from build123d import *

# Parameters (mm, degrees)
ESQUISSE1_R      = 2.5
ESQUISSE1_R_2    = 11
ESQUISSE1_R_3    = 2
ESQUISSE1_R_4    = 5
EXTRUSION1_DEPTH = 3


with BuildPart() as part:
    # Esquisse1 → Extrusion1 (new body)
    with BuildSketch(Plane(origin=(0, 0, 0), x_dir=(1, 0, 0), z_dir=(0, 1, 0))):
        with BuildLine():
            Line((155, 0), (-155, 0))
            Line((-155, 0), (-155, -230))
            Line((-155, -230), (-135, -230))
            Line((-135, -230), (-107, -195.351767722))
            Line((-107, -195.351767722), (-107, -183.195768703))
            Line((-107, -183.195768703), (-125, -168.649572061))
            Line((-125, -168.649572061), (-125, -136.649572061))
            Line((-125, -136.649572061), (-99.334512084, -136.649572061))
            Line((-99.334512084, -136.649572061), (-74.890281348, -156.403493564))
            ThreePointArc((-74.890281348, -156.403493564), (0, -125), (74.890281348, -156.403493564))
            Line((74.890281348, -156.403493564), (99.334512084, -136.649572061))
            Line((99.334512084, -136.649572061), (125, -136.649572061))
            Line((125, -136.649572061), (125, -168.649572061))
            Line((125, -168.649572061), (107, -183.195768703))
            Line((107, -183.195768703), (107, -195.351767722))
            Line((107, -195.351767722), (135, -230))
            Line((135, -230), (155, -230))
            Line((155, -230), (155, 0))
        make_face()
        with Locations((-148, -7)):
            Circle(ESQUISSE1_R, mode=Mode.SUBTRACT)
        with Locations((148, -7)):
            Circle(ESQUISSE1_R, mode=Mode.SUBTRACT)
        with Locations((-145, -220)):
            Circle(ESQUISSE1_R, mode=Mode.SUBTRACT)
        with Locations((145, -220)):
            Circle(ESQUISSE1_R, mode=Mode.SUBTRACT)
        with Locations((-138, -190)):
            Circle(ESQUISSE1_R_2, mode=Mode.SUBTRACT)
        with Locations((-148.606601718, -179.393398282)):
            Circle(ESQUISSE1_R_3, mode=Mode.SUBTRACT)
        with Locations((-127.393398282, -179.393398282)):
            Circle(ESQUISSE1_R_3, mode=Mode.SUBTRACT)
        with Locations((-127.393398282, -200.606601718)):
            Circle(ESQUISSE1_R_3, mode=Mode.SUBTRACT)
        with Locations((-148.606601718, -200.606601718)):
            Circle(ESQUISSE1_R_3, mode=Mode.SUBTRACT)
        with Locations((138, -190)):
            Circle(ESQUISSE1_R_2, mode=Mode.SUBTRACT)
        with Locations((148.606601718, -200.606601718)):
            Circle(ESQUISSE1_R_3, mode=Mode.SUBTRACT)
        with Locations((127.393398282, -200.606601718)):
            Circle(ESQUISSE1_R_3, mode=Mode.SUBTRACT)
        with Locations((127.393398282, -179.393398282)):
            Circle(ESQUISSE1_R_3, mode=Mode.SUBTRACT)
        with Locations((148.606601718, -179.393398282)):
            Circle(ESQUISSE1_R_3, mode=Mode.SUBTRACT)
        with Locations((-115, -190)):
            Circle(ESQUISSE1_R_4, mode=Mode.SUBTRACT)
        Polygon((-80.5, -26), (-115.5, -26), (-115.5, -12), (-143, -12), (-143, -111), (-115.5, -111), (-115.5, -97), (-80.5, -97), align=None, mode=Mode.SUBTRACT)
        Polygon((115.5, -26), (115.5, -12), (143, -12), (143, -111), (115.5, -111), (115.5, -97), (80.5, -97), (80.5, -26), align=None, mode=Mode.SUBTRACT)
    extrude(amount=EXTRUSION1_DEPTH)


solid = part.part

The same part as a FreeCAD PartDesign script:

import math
import FreeCAD as App
import Part
import Sketcher

doc = App.newDocument("Part")
body = doc.addObject("PartDesign::Body", "Body")

sketch1 = body.newObject("Sketcher::SketchObject", "Sketch")
sketch1.AttachmentSupport = (doc.getObject("XZ_Plane"), [""])
sketch1.MapMode = "FlatFace"
sketch1.addGeometry([
    Part.LineSegment(App.Vector(155, 0, 0), App.Vector(-155, 0, 0)),
    Part.LineSegment(App.Vector(-155, 0, 0), App.Vector(-155, 230, 0)),
    Part.LineSegment(App.Vector(-155, 230, 0), App.Vector(-135, 230, 0)),
    Part.LineSegment(App.Vector(-135, 230, 0), App.Vector(-107, 195.351768, 0)),
    Part.LineSegment(App.Vector(-107, 195.351768, 0), App.Vector(-107, 183.195769, 0)),
    Part.LineSegment(App.Vector(-107, 183.195769, 0), App.Vector(-125, 168.649572, 0)),
    Part.LineSegment(App.Vector(-125, 168.649572, 0), App.Vector(-125, 136.649572, 0)),
    Part.LineSegment(App.Vector(-125, 136.649572, 0), App.Vector(-99.334512, 136.649572, 0)),
    Part.LineSegment(App.Vector(-99.334512, 136.649572, 0), App.Vector(-74.890281, 156.403494, 0)),
    Part.ArcOfCircle(Part.Circle(App.Vector(0, 230, 0), App.Vector(0, 0, 1), 105), math.radians(-135.499209), math.radians(-44.500791)),
    Part.LineSegment(App.Vector(74.890281, 156.403494, 0), App.Vector(99.334512, 136.649572, 0)),
    Part.LineSegment(App.Vector(99.334512, 136.649572, 0), App.Vector(125, 136.649572, 0)),
    Part.LineSegment(App.Vector(125, 136.649572, 0), App.Vector(125, 168.649572, 0)),
    Part.LineSegment(App.Vector(125, 168.649572, 0), App.Vector(107, 183.195769, 0)),
    Part.LineSegment(App.Vector(107, 183.195769, 0), App.Vector(107, 195.351768, 0)),
    Part.LineSegment(App.Vector(107, 195.351768, 0), App.Vector(135, 230, 0)),
    Part.LineSegment(App.Vector(135, 230, 0), App.Vector(155, 230, 0)),
    Part.LineSegment(App.Vector(155, 230, 0), App.Vector(155, 0, 0)),
    Part.Circle(App.Vector(-145, 220, 0), App.Vector(0, 0, 1), 2.5),
    Part.Circle(App.Vector(-148.606602, 200.606602, 0), App.Vector(0, 0, 1), 2),
    Part.Circle(App.Vector(-127.393398, 200.606602, 0), App.Vector(0, 0, 1), 2),
    Part.Circle(App.Vector(-138, 190, 0), App.Vector(0, 0, 1), 11),
    Part.Circle(App.Vector(-115, 190, 0), App.Vector(0, 0, 1), 5),
    Part.Circle(App.Vector(-148.606602, 179.393398, 0), App.Vector(0, 0, 1), 2),
    Part.Circle(App.Vector(-127.393398, 179.393398, 0), App.Vector(0, 0, 1), 2),
    Part.Circle(App.Vector(145, 220, 0), App.Vector(0, 0, 1), 2.5),
    Part.Circle(App.Vector(127.393398, 200.606602, 0), App.Vector(0, 0, 1), 2),
    Part.Circle(App.Vector(148.606602, 200.606602, 0), App.Vector(0, 0, 1), 2),
    Part.Circle(App.Vector(138, 190, 0), App.Vector(0, 0, 1), 11),
    Part.Circle(App.Vector(127.393398, 179.393398, 0), App.Vector(0, 0, 1), 2),
    Part.Circle(App.Vector(148.606602, 179.393398, 0), App.Vector(0, 0, 1), 2),
    Part.LineSegment(App.Vector(-115.5, 26, 0), App.Vector(-80.5, 26, 0)),
    Part.LineSegment(App.Vector(-80.5, 26, 0), App.Vector(-80.5, 97, 0)),
    Part.LineSegment(App.Vector(-80.5, 97, 0), App.Vector(-115.5, 97, 0)),
    Part.LineSegment(App.Vector(-115.5, 97, 0), App.Vector(-115.5, 111, 0)),
    Part.LineSegment(App.Vector(-115.5, 111, 0), App.Vector(-143, 111, 0)),
    Part.LineSegment(App.Vector(-143, 111, 0), App.Vector(-143, 12, 0)),
    Part.LineSegment(App.Vector(-143, 12, 0), App.Vector(-115.5, 12, 0)),
    Part.LineSegment(App.Vector(-115.5, 12, 0), App.Vector(-115.5, 26, 0)),
    Part.Circle(App.Vector(-148, 7, 0), App.Vector(0, 0, 1), 2.5),
    Part.LineSegment(App.Vector(80.5, 26, 0), App.Vector(115.5, 26, 0)),
    Part.LineSegment(App.Vector(115.5, 26, 0), App.Vector(115.5, 12, 0)),
    Part.LineSegment(App.Vector(115.5, 12, 0), App.Vector(143, 12, 0)),
    Part.LineSegment(App.Vector(143, 12, 0), App.Vector(143, 111, 0)),
    Part.LineSegment(App.Vector(143, 111, 0), App.Vector(115.5, 111, 0)),
    Part.LineSegment(App.Vector(115.5, 111, 0), App.Vector(115.5, 97, 0)),
    Part.LineSegment(App.Vector(115.5, 97, 0), App.Vector(80.5, 97, 0)),
    Part.LineSegment(App.Vector(80.5, 97, 0), App.Vector(80.5, 26, 0)),
    Part.Circle(App.Vector(148, 7, 0), App.Vector(0, 0, 1), 2.5),
], False)
sketch1.addConstraint([
    Sketcher.Constraint("Coincident", 0, 2, 1, 1),
    Sketcher.Constraint("Coincident", 1, 2, 2, 1),
    Sketcher.Constraint("Coincident", 2, 2, 3, 1),
    Sketcher.Constraint("Coincident", 3, 2, 4, 1),
    Sketcher.Constraint("Coincident", 4, 2, 5, 1),
    Sketcher.Constraint("Coincident", 5, 2, 6, 1),
    Sketcher.Constraint("Coincident", 6, 2, 7, 1),
    Sketcher.Constraint("Coincident", 7, 2, 8, 1),
    Sketcher.Constraint("Coincident", 8, 2, 9, 1),
    Sketcher.Constraint("Coincident", 9, 2, 10, 1),
    Sketcher.Constraint("Coincident", 10, 2, 11, 1),
    Sketcher.Constraint("Coincident", 11, 2, 12, 1),
    Sketcher.Constraint("Coincident", 12, 2, 13, 1),
    Sketcher.Constraint("Coincident", 13, 2, 14, 1),
    Sketcher.Constraint("Coincident", 14, 2, 15, 1),
    Sketcher.Constraint("Coincident", 15, 2, 16, 1),
    Sketcher.Constraint("Coincident", 16, 2, 17, 1),
    Sketcher.Constraint("Coincident", 17, 2, 0, 1),
    Sketcher.Constraint("Coincident", 31, 2, 32, 1),
    Sketcher.Constraint("Coincident", 32, 2, 33, 1),
    Sketcher.Constraint("Coincident", 33, 2, 34, 1),
    Sketcher.Constraint("Coincident", 34, 2, 35, 1),
    Sketcher.Constraint("Coincident", 35, 2, 36, 1),
    Sketcher.Constraint("Coincident", 36, 2, 37, 1),
    Sketcher.Constraint("Coincident", 37, 2, 38, 1),
    Sketcher.Constraint("Coincident", 38, 2, 31, 1),
    Sketcher.Constraint("Coincident", 40, 2, 41, 1),
    Sketcher.Constraint("Coincident", 41, 2, 42, 1),
    Sketcher.Constraint("Coincident", 42, 2, 43, 1),
    Sketcher.Constraint("Coincident", 43, 2, 44, 1),
    Sketcher.Constraint("Coincident", 44, 2, 45, 1),
    Sketcher.Constraint("Coincident", 45, 2, 46, 1),
    Sketcher.Constraint("Coincident", 46, 2, 47, 1),
    Sketcher.Constraint("Coincident", 47, 2, 40, 1),
    Sketcher.Constraint("Horizontal", 0),
    Sketcher.Constraint("Vertical", 1),
    Sketcher.Constraint("Horizontal", 2),
    Sketcher.Constraint("Vertical", 4),
    Sketcher.Constraint("Vertical", 6),
    Sketcher.Constraint("Horizontal", 7),
    Sketcher.Constraint("Horizontal", 11),
    Sketcher.Constraint("Vertical", 12),
    Sketcher.Constraint("Vertical", 14),
    Sketcher.Constraint("Horizontal", 16),
    Sketcher.Constraint("Vertical", 17),
    Sketcher.Constraint("Horizontal", 31),
    Sketcher.Constraint("Vertical", 32),
    Sketcher.Constraint("Horizontal", 33),
    Sketcher.Constraint("Vertical", 34),
    Sketcher.Constraint("Horizontal", 35),
    Sketcher.Constraint("Vertical", 36),
    Sketcher.Constraint("Horizontal", 37),
    Sketcher.Constraint("Vertical", 38),
    Sketcher.Constraint("Horizontal", 40),
    Sketcher.Constraint("Vertical", 41),
    Sketcher.Constraint("Horizontal", 42),
    Sketcher.Constraint("Vertical", 43),
    Sketcher.Constraint("Horizontal", 44),
    Sketcher.Constraint("Vertical", 45),
    Sketcher.Constraint("Horizontal", 46),
    Sketcher.Constraint("Vertical", 47),
    Sketcher.Constraint("Equal", 19, 20),
    Sketcher.Constraint("Equal", 20, 23),
    Sketcher.Constraint("Equal", 23, 24),
    Sketcher.Constraint("Equal", 18, 25),
    Sketcher.Constraint("Equal", 24, 26),
    Sketcher.Constraint("Equal", 26, 27),
    Sketcher.Constraint("Equal", 21, 28),
    Sketcher.Constraint("Equal", 27, 29),
    Sketcher.Constraint("Equal", 29, 30),
    Sketcher.Constraint("Equal", 25, 39),
    Sketcher.Constraint("Equal", 39, 48),
    Sketcher.Constraint("Symmetric", 0, 2, 17, 2, -1, 1),
    Sketcher.Constraint("Symmetric", 18, 3, 25, 3, -2),
    Sketcher.Constraint("Symmetric", 20, 3, 26, 3, -2),
    Sketcher.Constraint("Symmetric", 19, 3, 27, 3, -2),
    Sketcher.Constraint("Symmetric", 21, 3, 28, 3, -2),
    Sketcher.Constraint("Symmetric", 24, 3, 29, 3, -2),
    Sketcher.Constraint("Symmetric", 23, 3, 30, 3, -2),
    Sketcher.Constraint("Symmetric", 39, 3, 48, 3, -2),
    Sketcher.Constraint("Symmetric", 8, 2, 9, 2, -2),
    Sketcher.Constraint("Symmetric", 7, 2, 10, 2, -2),
    Sketcher.Constraint("Symmetric", 5, 2, 12, 2, -2),
    Sketcher.Constraint("Symmetric", 4, 2, 13, 2, -2),
    Sketcher.Constraint("Symmetric", 2, 2, 15, 2, -2),
    Sketcher.Constraint("Symmetric", 38, 2, 40, 2, -2),
    Sketcher.Constraint("Symmetric", 36, 2, 42, 2, -2),
    Sketcher.Constraint("Symmetric", 34, 2, 44, 2, -2),
    Sketcher.Constraint("Symmetric", 32, 2, 46, 2, -2),
    Sketcher.Constraint("Perpendicular", 3, 5),
    Sketcher.Constraint("Parallel", 5, 8),
    Sketcher.Constraint("Perpendicular", 13, 15),
    Sketcher.Constraint("Horizontal", 19, 3, 20, 3),
    Sketcher.Constraint("Horizontal", 21, 3, 22, 3),
    Sketcher.Constraint("Horizontal", 23, 3, 24, 3),
    Sketcher.Constraint("Horizontal", 9, 3, 1, 2),
    Sketcher.Constraint("Vertical", 19, 3, 23, 3),
    Sketcher.Constraint("Vertical", 20, 3, 24, 3),
    Sketcher.Constraint("Vertical", 34, 2, 37, 2),
    Sketcher.Constraint("Equal", 34, 38),
    Sketcher.Constraint("Diameter", 18, 5.0),
    Sketcher.Constraint("Diameter", 19, 4.0),
    Sketcher.Constraint("Diameter", 21, 22.0),
    Sketcher.Constraint("Diameter", 22, 10.0),
    Sketcher.Constraint("Radius", 9, 105.0),
    Sketcher.Constraint("DistanceX", 0, 2, 0, 1, 310.0),
    Sketcher.Constraint("DistanceX", 2, 1, 2, 2, 20.0),
    Sketcher.Constraint("DistanceX", 31, 1, 31, 2, 35.0),
    Sketcher.Constraint("DistanceY", 1, 1, 1, 2, 230.0),
    Sketcher.Constraint("DistanceY", 6, 2, 6, 1, 32.0),
    Sketcher.Constraint("DistanceY", 32, 1, 32, 2, 71.0),
    Sketcher.Constraint("DistanceY", 34, 1, 34, 2, 14.0),
    Sketcher.Constraint("DistanceX", 35, 2, 35, 1, 27.5),
    Sketcher.Constraint("DistanceX", 18, 3, -1, 1, 145.0),
    Sketcher.Constraint("DistanceY", -1, 1, 18, 3, 220.0),
    Sketcher.Constraint("DistanceX", 21, 3, -1, 1, 138.0),
    Sketcher.Constraint("DistanceY", -1, 1, 21, 3, 190.0),
    Sketcher.Constraint("DistanceX", 22, 3, -1, 1, 115.0),
    Sketcher.Constraint("DistanceX", 39, 3, -1, 1, 148.0),
    Sketcher.Constraint("DistanceY", -1, 1, 39, 3, 7.0),
    Sketcher.Constraint("DistanceX", 3, 2, -1, 1, 107.0),
    Sketcher.Constraint("DistanceX", 5, 2, -1, 1, 125.0),
    Sketcher.Constraint("DistanceY", -1, 1, 31, 2, 26.0),
    Sketcher.Constraint("DistanceX", 35, 2, -1, 1, 143.0),
    Sketcher.Constraint("DistanceX", 20, 3, 27, 3, 276.0),
    Sketcher.Constraint("DistanceY", 4, 2, 4, 1, 12.155999),
    Sketcher.Constraint("DistanceX", 19, 3, -1, 1, 148.606602),
    Sketcher.Constraint("DistanceY", -1, 1, 19, 3, 200.606602),
    Sketcher.Constraint("DistanceY", -1, 1, 23, 3, 179.393398),
    Sketcher.Constraint("DistanceX", 7, 1, 7, 2, 25.665488),
    Sketcher.Constraint("DistanceY", -1, 1, 4, 2, 183.195769),
])
pad1 = body.newObject("PartDesign::Pad", "Pad")
pad1.Profile = sketch1
pad1.Length = 3
pad1.Reversed = True

doc.recompute()
